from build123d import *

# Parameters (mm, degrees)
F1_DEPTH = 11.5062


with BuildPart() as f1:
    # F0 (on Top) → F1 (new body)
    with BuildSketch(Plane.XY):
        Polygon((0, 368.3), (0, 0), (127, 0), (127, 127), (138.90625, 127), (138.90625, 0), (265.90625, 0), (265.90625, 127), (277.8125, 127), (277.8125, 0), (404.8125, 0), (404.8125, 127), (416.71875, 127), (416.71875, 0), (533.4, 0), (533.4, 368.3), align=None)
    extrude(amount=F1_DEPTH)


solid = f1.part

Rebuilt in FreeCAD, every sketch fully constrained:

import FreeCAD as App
import Part
import Sketcher
Q = App.Units.Quantity

doc = App.newDocument("Part")
body = doc.addObject("PartDesign::Body", "Body")

# Sketch on XY plane
sketch1 = doc.addObject("Sketcher::SketchObject", "Sketch")
body.addObject(sketch1)
sketch1.AttachmentSupport = (doc.XY_Plane, [""])
sketch1.MapMode = "FlatFace"
sketch1.addGeometry([
    Part.LineSegment(App.Vector(0, 368, 0), App.Vector(0, 0, 0)),  # 0
    Part.LineSegment(App.Vector(0, 0, 0), App.Vector(127, 0, 0)),  # 1
    Part.LineSegment(App.Vector(127, 0, 0), App.Vector(127, 127, 0)),  # 2
    Part.LineSegment(App.Vector(127, 127, 0), App.Vector(139, 127, 0)),  # 3
    Part.LineSegment(App.Vector(139, 127, 0), App.Vector(139, 0, 0)),  # 4
    Part.LineSegment(App.Vector(139, 0, 0), App.Vector(266, 0, 0)),  # 5
    Part.LineSegment(App.Vector(266, 0, 0), App.Vector(266, 127, 0)),  # 6
    Part.LineSegment(App.Vector(266, 127, 0), App.Vector(278, 127, 0)),  # 7
    Part.LineSegment(App.Vector(278, 127, 0), App.Vector(278, 0, 0)),  # 8
    Part.LineSegment(App.Vector(278, 0, 0), App.Vector(405, 0, 0)),  # 9
    Part.LineSegment(App.Vector(405, 0, 0), App.Vector(405, 127, 0)),  # 10
    Part.LineSegment(App.Vector(405, 127, 0), App.Vector(417, 127, 0)),  # 11
    Part.LineSegment(App.Vector(417, 127, 0), App.Vector(417, 0, 0)),  # 12
    Part.LineSegment(App.Vector(417, 0, 0), App.Vector(533, 0, 0)),  # 13
    Part.LineSegment(App.Vector(533, 0, 0), App.Vector(533, 368, 0)),  # 14
    Part.LineSegment(App.Vector(533, 368, 0), App.Vector(0, 368, 0)),  # 15
], False)
sketch1.addConstraint([
    Sketcher.Constraint("Coincident", 0, 2, 1, 1),
    Sketcher.Constraint("Coincident", 1, 2, 2, 1),
    Sketcher.Constraint("Coincident", 2, 2, 3, 1),
    Sketcher.Constraint("Coincident", 3, 2, 4, 1),
    Sketcher.Constraint("Coincident", 4, 2, 5, 1),
    Sketcher.Constraint("Coincident", 5, 2, 6, 1),
    Sketcher.Constraint("Coincident", 6, 2, 7, 1),
    Sketcher.Constraint("Coincident", 7, 2, 8, 1),
    Sketcher.Constraint("Coincident", 8, 2, 9, 1),
    Sketcher.Constraint("Coincident", 9, 2, 10, 1),
    Sketcher.Constraint("Coincident", 10, 2, 11, 1),
    Sketcher.Constraint("Coincident", 11, 2, 12, 1),
    Sketcher.Constraint("Coincident", 12, 2, 13, 1),
    Sketcher.Constraint("Coincident", 13, 2, 14, 1),
    Sketcher.Constraint("Coincident", 14, 2, 15, 1),
    Sketcher.Constraint("Coincident", 15, 2, 0, 1),
    Sketcher.Constraint("Vertical", 0),
    Sketcher.Constraint("Horizontal", 1),
    Sketcher.Constraint("Vertical", 2),
    Sketcher.Constraint("Horizontal", 3),
    Sketcher.Constraint("Vertical", 4),
    Sketcher.Constraint("Horizontal", 5),
    Sketcher.Constraint("Vertical", 6),
    Sketcher.Constraint("Horizontal", 7),
    Sketcher.Constraint("Vertical", 8),
    Sketcher.Constraint("Horizontal", 9),
    Sketcher.Constraint("Vertical", 10),
    Sketcher.Constraint("Horizontal", 11),
    Sketcher.Constraint("Vertical", 12),
    Sketcher.Constraint("Horizontal", 13),
    Sketcher.Constraint("Vertical", 14),
    Sketcher.Constraint("Horizontal", 15),
    Sketcher.Constraint("Coincident", 0, 2, -1, 1),
    Sketcher.Constraint("PointOnObject", 4, 2, -1),
    Sketcher.Constraint("PointOnObject", 8, 2, -1),
    Sketcher.Constraint("PointOnObject", 12, 2, -1),
    Sketcher.Constraint("Horizontal", 3, 2, 6, 2),
    Sketcher.Constraint("Horizontal", 7, 2, 10, 2),
    Sketcher.Constraint("Equal", 1, 5),
    Sketcher.Constraint("Equal", 3, 7),
    Sketcher.Constraint("Equal", 5, 9),
    Sketcher.Constraint("Equal", 7, 11),
    Sketcher.Constraint("Equal", 9, 2),
    Sketcher.Constraint("DistanceX", 1, 1, 1, 2, Q("5 in")),
    Sketcher.Constraint("DistanceX", 15, 2, 15, 1, Q("21 in")),
    Sketcher.Constraint("DistanceY", 0, 2, 0, 1, Q("14.5 in")),
    Sketcher.Constraint("DistanceX", 3, 1, 3, 2, Q("0.46875 in")),
])
pad1 = doc.addObject("PartDesign::Pad", "Pad")
body.addObject(pad1)
pad1.Profile = sketch1
pad1.Length = Q("0.453 in")

doc.recompute()
